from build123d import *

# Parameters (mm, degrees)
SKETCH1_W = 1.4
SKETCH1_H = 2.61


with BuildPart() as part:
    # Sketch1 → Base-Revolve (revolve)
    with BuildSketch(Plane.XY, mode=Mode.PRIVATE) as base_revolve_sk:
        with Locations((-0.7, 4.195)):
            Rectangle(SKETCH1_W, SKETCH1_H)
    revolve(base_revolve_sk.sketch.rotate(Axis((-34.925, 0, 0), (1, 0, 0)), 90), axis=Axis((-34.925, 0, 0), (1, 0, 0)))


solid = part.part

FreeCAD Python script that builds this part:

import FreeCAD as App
import Part
import Sketcher

V = App.Vector

doc = App.newDocument("Part")
body = doc.addObject("PartDesign::Body", "Body")

sketch1 = body.newObject("Sketcher::SketchObject", "Sketch")
sketch1.AttachmentSupport = (doc.getObject("XY_Plane"), [""])
sketch1.MapMode = "FlatFace"
sketch1.addGeometry(Part.LineSegment(V(-1.4, 5.5, 0), V(-1.4, 2.9, 0)), False)
sketch1.addGeometry(Part.LineSegment(V(-1.4, 2.9, 0), V(0, 2.9, 0)), False)
sketch1.addGeometry(Part.LineSegment(V(0, 2.9, 0), V(0, 5.5, 0)), False)
sketch1.addGeometry(Part.LineSegment(V(0, 5.5, 0), V(-1.4, 5.5, 0)), False)
sketch1.addConstraint(Sketcher.Constraint("Coincident", 0, 2, 1, 1))
sketch1.addConstraint(Sketcher.Constraint("Coincident", 1, 2, 2, 1))
sketch1.addConstraint(Sketcher.Constraint("Coincident", 2, 2, 3, 1))
sketch1.addConstraint(Sketcher.Constraint("Coincident", 3, 2, 0, 1))
sketch1.addConstraint(Sketcher.Constraint("Vertical", 0))
sketch1.addConstraint(Sketcher.Constraint("Horizontal", 1))
sketch1.addConstraint(Sketcher.Constraint("Vertical", 2))
sketch1.addConstraint(Sketcher.Constraint("Horizontal", 3))
sketch1.addConstraint(Sketcher.Constraint("PointOnObject", 1, 2, -2))
sketch1.addConstraint(Sketcher.Constraint("DistanceX", 1, 1, 1, 2, 1.4))
sketch1.addConstraint(Sketcher.Constraint("DistanceY", 0, 2, 0, 1, 2.61))
sketch1.addConstraint(Sketcher.Constraint("DistanceY", -1, 1, 2, 2, 5.5))
revolution = body.newObject("PartDesign::Revolution", "Revolution")
revolution.Profile = sketch1
revolution.ReferenceAxis = (sketch1, ["H_Axis"])
revolution.Angle = 360

doc.recompute()
